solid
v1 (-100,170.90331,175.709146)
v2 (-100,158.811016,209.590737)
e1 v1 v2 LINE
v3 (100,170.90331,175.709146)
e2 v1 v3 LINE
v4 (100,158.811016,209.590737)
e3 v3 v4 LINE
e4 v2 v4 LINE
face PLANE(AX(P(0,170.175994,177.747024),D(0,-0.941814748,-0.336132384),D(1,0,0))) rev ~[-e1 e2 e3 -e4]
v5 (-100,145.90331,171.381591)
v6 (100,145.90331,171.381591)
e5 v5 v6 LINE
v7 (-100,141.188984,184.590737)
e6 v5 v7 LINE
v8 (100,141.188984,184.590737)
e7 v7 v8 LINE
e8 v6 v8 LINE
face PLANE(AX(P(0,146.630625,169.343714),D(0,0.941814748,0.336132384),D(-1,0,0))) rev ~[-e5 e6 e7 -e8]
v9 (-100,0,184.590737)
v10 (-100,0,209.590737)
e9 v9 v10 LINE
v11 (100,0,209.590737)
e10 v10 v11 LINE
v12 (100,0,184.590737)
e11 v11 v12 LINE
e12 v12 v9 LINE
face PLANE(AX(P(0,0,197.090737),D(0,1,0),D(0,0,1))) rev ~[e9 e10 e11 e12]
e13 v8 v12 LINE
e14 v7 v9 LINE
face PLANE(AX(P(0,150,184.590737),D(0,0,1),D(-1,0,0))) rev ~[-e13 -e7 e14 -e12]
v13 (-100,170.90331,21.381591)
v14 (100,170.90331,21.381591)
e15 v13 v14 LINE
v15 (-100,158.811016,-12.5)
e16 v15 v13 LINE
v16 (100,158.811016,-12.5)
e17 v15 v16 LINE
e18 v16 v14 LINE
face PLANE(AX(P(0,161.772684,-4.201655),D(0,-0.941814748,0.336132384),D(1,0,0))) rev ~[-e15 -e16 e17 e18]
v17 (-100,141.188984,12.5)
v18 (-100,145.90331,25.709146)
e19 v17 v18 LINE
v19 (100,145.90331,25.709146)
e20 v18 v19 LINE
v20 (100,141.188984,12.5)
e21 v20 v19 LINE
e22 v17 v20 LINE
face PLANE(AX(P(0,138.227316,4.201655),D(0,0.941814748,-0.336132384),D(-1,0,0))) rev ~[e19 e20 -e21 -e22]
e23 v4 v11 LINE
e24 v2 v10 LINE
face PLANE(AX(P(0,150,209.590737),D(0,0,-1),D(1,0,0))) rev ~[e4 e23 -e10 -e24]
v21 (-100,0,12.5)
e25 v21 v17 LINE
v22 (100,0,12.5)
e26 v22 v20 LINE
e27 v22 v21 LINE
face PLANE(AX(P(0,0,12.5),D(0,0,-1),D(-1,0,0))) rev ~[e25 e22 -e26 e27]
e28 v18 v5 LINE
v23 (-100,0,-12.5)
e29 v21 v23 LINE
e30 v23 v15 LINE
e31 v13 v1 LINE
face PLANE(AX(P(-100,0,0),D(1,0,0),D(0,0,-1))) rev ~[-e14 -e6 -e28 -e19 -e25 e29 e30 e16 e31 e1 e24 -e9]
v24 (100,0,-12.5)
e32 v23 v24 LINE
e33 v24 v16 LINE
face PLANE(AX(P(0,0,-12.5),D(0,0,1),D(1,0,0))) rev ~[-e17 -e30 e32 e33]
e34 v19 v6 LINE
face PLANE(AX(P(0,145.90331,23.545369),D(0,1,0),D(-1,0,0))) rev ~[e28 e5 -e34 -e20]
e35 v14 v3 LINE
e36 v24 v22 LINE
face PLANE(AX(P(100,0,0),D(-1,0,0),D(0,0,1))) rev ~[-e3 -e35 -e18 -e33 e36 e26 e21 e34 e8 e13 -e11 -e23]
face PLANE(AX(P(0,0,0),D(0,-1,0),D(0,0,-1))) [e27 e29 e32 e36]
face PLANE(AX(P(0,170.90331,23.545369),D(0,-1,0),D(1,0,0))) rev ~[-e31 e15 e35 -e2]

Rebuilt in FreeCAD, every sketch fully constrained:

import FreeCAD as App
import Part
import Sketcher
from FreeCAD import Vector

doc = App.newDocument("Part")
body = doc.addObject("PartDesign::Body", "Body")

# Sketch on XZ plane
sketch1 = doc.addObject("Sketcher::SketchObject", "Sketch")
body.addObject(sketch1)
sketch1.AttachmentSupport = (doc.XZ_Plane, [""])
sketch1.MapMode = "FlatFace"
sketch1.addGeometry([
    Part.LineSegment(Vector(-100, 12, 0), Vector(-100, -12, 0)),
    Part.LineSegment(Vector(-100, -12, 0), Vector(100, -12, 0)),
    Part.LineSegment(Vector(100, -12, 0), Vector(100, 12, 0)),
    Part.LineSegment(Vector(100, 12, 0), Vector(-100, 12, 0)),
], False)
sketch1.addConstraint([
    Sketcher.Constraint("Coincident", 0, 2, 1, 1),
    Sketcher.Constraint("Coincident", 1, 2, 2, 1),
    Sketcher.Constraint("Coincident", 2, 2, 3, 1),
    Sketcher.Constraint("Coincident", 3, 2, 0, 1),
    Sketcher.Constraint("Vertical", 0),
    Sketcher.Constraint("Horizontal", 1),
    Sketcher.Constraint("Vertical", 2),
    Sketcher.Constraint("Horizontal", 3),
    Sketcher.Constraint("Symmetric", 0, 2, 2, 2, -1, 1),
    Sketcher.Constraint("DistanceX", 1, 1, 1, 2, 200.0),
    Sketcher.Constraint("DistanceY", 0, 2, 0, 1, 25.0),
])

# Sketch on YZ plane
sketch2 = doc.addObject("Sketcher::SketchObject", "Sketch001")
body.addObject(sketch2)
sketch2.AttachmentSupport = (doc.YZ_Plane, [""])
sketch2.MapMode = "FlatFace"
sketch2.addGeometry([
    Part.LineSegment(Vector(0, 0, 0), Vector(150, 0, 0)),  # 0
    Part.LineSegment(Vector(150, 0, 0), Vector(158, 24, 0)),  # 1
    Part.LineSegment(Vector(158, 24, 0), Vector(158, 174, 0)),  # 2
    Part.LineSegment(Vector(158, 174, 0), Vector(150, 197, 0)),  # 3
    Part.LineSegment(Vector(150, 197, 0), Vector(0, 197, 0)),  # 4
], False)
sketch2.addConstraint([
    Sketcher.Constraint("Coincident", 0, 2, 1, 1),
    Sketcher.Constraint("Coincident", 1, 2, 2, 1),
    Sketcher.Constraint("Coincident", 2, 2, 3, 1),
    Sketcher.Constraint("Coincident", 3, 2, 4, 1),
    Sketcher.Constraint("Horizontal", 0),
    Sketcher.Constraint("Vertical", 2),
    Sketcher.Constraint("Horizontal", 4),
    Sketcher.Constraint("Coincident", 0, 1, -1, 1),
    Sketcher.Constraint("PointOnObject", 4, 2, -2),
    Sketcher.Constraint("Vertical", 0, 2, 3, 2),
    Sketcher.Constraint("Equal", 4, 2),
    Sketcher.Constraint("Equal", 1, 3),
    Sketcher.Constraint("DistanceX", 0, 1, 0, 2, 150.0),
    Sketcher.Constraint("Distance", 1, 25.0),
    Sketcher.Constraint("DistanceX", -1, 1, 1, 2, 158.40331),
])
doc.recompute()

additivepipe = doc.addObject("PartDesign::AdditivePipe", "AdditivePipe")
body.addObject(additivepipe)
additivepipe.Profile = sketch1
additivepipe.Spine = (sketch2, ["Edge1", "Edge2", "Edge3", "Edge4", "Edge5"])
additivepipe.Transition = "Right corner"

doc.recompute()
